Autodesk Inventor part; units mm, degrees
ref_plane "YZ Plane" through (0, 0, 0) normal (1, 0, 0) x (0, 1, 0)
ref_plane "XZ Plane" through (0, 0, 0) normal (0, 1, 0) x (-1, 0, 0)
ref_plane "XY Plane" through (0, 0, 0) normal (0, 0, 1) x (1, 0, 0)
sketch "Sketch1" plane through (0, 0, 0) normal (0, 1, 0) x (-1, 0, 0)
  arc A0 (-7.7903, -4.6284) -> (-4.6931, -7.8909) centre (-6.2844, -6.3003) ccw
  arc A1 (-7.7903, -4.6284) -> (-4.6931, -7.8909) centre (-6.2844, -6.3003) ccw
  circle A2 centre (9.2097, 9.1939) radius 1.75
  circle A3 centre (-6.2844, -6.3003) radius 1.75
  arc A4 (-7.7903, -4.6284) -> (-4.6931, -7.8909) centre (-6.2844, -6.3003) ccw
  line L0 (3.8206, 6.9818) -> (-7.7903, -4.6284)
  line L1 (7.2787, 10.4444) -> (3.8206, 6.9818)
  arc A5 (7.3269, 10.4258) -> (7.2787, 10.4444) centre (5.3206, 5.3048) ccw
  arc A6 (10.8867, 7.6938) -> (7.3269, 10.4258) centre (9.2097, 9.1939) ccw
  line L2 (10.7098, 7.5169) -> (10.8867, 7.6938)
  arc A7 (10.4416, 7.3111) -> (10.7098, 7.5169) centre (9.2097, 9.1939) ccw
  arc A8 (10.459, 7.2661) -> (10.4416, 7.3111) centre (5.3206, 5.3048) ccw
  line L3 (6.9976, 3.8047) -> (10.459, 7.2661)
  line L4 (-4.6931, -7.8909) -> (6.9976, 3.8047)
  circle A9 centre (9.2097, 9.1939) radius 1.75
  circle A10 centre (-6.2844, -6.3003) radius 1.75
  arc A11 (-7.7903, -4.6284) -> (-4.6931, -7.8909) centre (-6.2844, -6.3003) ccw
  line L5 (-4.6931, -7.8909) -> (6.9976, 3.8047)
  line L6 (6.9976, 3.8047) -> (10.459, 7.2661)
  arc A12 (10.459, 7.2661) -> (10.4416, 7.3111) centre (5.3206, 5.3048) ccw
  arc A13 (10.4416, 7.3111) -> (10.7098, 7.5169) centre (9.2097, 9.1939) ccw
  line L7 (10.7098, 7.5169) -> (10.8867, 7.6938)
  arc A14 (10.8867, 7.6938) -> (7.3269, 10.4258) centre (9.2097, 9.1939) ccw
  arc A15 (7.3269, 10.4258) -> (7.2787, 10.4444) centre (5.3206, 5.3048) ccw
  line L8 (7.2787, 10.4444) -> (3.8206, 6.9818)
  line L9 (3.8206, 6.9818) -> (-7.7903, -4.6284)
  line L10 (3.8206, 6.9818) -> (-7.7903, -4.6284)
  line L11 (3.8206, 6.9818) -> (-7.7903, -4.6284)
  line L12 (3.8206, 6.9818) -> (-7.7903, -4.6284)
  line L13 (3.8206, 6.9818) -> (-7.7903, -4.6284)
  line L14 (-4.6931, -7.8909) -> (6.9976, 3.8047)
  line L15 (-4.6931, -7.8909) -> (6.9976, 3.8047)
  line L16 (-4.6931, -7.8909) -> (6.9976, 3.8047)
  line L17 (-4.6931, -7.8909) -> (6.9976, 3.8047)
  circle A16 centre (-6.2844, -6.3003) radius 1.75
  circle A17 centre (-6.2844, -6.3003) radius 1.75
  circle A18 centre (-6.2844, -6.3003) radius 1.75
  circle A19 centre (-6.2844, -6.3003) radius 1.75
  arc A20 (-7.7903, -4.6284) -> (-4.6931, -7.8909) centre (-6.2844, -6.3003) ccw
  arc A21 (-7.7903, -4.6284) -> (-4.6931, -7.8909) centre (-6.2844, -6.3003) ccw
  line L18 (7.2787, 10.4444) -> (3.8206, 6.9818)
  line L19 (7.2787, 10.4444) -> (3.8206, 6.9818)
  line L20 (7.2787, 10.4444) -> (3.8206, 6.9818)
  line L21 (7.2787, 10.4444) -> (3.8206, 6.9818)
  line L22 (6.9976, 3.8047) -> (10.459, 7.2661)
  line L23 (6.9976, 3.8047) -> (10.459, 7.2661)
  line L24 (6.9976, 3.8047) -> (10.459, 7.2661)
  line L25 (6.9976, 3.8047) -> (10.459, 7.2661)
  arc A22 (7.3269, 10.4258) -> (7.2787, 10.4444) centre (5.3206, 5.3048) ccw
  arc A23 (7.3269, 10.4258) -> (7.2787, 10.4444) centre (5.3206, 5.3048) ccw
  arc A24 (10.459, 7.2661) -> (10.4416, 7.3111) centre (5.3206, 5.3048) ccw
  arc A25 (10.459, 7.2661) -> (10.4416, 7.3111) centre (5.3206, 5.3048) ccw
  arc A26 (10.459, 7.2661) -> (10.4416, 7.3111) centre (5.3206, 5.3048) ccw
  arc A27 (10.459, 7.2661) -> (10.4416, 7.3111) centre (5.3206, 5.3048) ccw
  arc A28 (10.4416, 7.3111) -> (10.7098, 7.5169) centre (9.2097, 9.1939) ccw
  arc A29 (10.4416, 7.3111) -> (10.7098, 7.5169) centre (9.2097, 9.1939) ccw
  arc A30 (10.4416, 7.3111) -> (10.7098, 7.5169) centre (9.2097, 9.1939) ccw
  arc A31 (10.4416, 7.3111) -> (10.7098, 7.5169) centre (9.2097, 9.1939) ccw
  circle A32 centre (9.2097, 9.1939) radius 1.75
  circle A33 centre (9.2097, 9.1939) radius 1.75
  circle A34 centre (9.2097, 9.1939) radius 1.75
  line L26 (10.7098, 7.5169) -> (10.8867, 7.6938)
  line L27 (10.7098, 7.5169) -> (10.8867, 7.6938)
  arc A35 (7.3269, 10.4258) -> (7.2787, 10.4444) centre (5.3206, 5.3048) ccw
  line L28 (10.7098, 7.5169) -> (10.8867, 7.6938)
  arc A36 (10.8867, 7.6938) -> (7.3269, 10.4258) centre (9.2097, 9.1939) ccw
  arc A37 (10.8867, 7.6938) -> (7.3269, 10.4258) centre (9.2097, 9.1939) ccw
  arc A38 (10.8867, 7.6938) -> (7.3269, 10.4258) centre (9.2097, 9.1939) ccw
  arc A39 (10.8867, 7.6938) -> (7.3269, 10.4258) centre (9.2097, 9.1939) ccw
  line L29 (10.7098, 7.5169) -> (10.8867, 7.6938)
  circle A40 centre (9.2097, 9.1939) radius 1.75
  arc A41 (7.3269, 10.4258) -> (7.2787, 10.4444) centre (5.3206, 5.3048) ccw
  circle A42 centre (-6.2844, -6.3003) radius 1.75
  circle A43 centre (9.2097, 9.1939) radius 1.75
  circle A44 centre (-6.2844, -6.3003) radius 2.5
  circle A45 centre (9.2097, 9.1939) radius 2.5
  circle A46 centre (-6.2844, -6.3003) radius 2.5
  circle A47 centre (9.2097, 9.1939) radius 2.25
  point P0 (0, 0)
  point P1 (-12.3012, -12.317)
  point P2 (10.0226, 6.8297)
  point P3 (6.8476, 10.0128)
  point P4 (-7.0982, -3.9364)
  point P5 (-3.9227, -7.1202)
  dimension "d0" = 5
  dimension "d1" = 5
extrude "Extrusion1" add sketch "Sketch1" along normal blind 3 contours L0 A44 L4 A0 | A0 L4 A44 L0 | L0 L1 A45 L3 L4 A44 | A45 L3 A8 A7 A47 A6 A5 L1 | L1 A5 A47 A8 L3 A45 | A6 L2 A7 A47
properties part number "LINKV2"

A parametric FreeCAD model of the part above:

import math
import FreeCAD as App
import Part
import Sketcher

V = App.Vector
Q = App.Units.Quantity

doc = App.newDocument("Part")
body = doc.addObject("PartDesign::Body", "Body")

sketch1 = body.newObject("Sketcher::SketchObject", "Sketch")
sketch1.AttachmentSupport = (doc.getObject("XZ_Plane"), [""])
sketch1.MapMode = "FlatFace"
sketch1.addGeometry([
    Part.ArcOfCircle(Part.Circle(V(6.2844, -6.3003, 0), V(0, 0, 1), 2.5), math.radians(-160.856928), math.radians(70.998467)),
    Part.LineSegment(V(3.922643, -7.12012, 0), V(-6.9976, 3.8047, 0)),
    Part.LineSegment(V(-6.9976, 3.8047, 0), V(-10.02268, 6.82978, 0)),
    Part.ArcOfCircle(Part.Circle(V(-9.2097, 9.1939, 0), V(0, 0, 1), 2.5), math.radians(19.119373), math.radians(251.022793)),
    Part.LineSegment(V(-6.847604, 10.012743, 0), V(-3.8206, 6.9818, 0)),
    Part.LineSegment(V(-3.8206, 6.9818, 0), V(7.098384, -3.936525, 0)),
    Part.Circle(V(6.2844, -6.3003, 0), V(0, 0, 1), 1.75),
    Part.ArcOfCircle(Part.Circle(V(-9.2097, 9.1939, 0), V(0, 0, 1), 2.25), math.radians(-138.186922), math.radians(-131.813078)),
    Part.LineSegment(V(-10.8867, 7.6938, 0), V(-10.7098, 7.5169, 0)),
    Part.Circle(V(-9.2097, 9.1939, 0), V(0, 0, 1), 1.75),
], False)
sketch1.addConstraint([
    Sketcher.Constraint("Coincident", 0, 1, 1, 1),
    Sketcher.Constraint("Coincident", 1, 2, 2, 1),
    Sketcher.Constraint("Coincident", 2, 2, 3, 2),
    Sketcher.Constraint("Coincident", 3, 1, 4, 1),
    Sketcher.Constraint("Coincident", 4, 2, 5, 1),
    Sketcher.Constraint("Coincident", 5, 2, 0, 2),
    Sketcher.Constraint("Coincident", 7, 1, 8, 1),
    Sketcher.Constraint("Coincident", 8, 2, 7, 2),
    Sketcher.Constraint("Coincident", 6, 3, 0, 3),
    Sketcher.Constraint("Coincident", 7, 3, 3, 3),
    Sketcher.Constraint("Coincident", 9, 3, 3, 3),
    Sketcher.Constraint("Radius", 0, Q("2.5 mm")),
    Sketcher.Constraint("Radius", 3, Q("2.5 mm")),
    Sketcher.Constraint("Diameter", 6, Q("3.5 mm")),
    Sketcher.Constraint("Diameter", 9, Q("3.5 mm")),
    Sketcher.Constraint("Radius", 7, Q("2.25 mm")),
    Sketcher.Constraint("DistanceY", 7, 1, 3, 3, Q("1.5 mm")),
    Sketcher.Constraint("DistanceX", 8, 2, 3, 3, Q("1.5 mm")),
    Sketcher.Constraint("DistanceY", 0, 1, 2, 2, Q("13.95 mm")),
    Sketcher.Constraint("DistanceX", 1, 2, 3, 1, Q("0.15 mm")),
    Sketcher.Constraint("Distance", 2, Q("4.278 mm")),
    Sketcher.Constraint("DistanceY", -1, 1, 3, 3, Q("9.194 mm")),
    Sketcher.Constraint("DistanceX", 3, 3, 0, 3, Q("15.494 mm")),
    Sketcher.Constraint("DistanceY", 0, 1, 3, 3, Q("16.314 mm")),
    Sketcher.Constraint("DistanceX", 3, 3, 1, 2, Q("2.212 mm")),
    Sketcher.Constraint("DistanceY", 0, 3, 1, 2, Q("10.105 mm")),
    Sketcher.Constraint("DistanceX", 3, 1, 4, 2, Q("3.027 mm")),
    Sketcher.Constraint("DistanceY", 4, 2, 3, 1, Q("3.031 mm")),
    Sketcher.Constraint("DistanceX", 0, 3, 5, 2, Q("0.814 mm")),
    Sketcher.Constraint("DistanceX", -1, 1, 0, 3, Q("6.2844 mm")),
])
pad1 = body.newObject("PartDesign::Pad", "Pad")
pad1.Profile = sketch1
pad1.Length = 3
pad1.Reversed = True

doc.recompute()
